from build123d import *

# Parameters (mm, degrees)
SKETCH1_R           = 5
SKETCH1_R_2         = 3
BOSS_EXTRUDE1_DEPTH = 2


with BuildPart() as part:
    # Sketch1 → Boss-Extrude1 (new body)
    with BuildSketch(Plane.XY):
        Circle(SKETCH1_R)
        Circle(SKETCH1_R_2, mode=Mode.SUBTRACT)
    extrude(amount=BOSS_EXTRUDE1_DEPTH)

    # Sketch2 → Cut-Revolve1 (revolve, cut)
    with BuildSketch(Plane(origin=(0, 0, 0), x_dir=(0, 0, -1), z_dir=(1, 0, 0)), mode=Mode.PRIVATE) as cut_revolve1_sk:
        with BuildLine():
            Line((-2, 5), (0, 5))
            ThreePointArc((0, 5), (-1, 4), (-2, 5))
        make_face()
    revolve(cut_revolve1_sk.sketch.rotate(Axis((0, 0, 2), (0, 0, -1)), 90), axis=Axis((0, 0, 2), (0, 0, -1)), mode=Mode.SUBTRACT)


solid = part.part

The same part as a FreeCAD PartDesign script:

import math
import FreeCAD as App
import Part
import Sketcher

doc = App.newDocument("Part")
body = doc.addObject("PartDesign::Body", "Body")

# Sketch on XY plane
sketch1 = body.newObject("Sketcher::SketchObject", "Sketch")
sketch1.AttachmentSupport = (doc.getObject("XY_Plane"), [""])
sketch1.MapMode = "FlatFace"
sketch1.addGeometry(Part.Circle(App.Vector(0, 0, 0), App.Vector(0, 0, 1), 5), False)
sketch1.addGeometry(Part.Circle(App.Vector(0, 0, 0), App.Vector(0, 0, 1), 3), False)
sketch1.addConstraint(Sketcher.Constraint("Coincident", 0, 3, -1, 1))
sketch1.addConstraint(Sketcher.Constraint("Coincident", 1, 3, -1, 1))
sketch1.addConstraint(Sketcher.Constraint("Diameter", 0, 10.0))
sketch1.addConstraint(Sketcher.Constraint("Diameter", 1, 6.0))
pad1 = body.newObject("PartDesign::Pad", "Pad")
pad1.Profile = sketch1
pad1.Length = 2

# Sketch on YZ plane
sketch2 = body.newObject("Sketcher::SketchObject", "Sketch001")
sketch2.AttachmentSupport = (doc.getObject("YZ_Plane"), [""])
sketch2.MapMode = "FlatFace"
sketch2.addGeometry(Part.LineSegment(App.Vector(5, 0, 0), App.Vector(5, 2, 0)), False)
sketch2.addGeometry(Part.ArcOfCircle(Part.Circle(App.Vector(5, 1, 0), App.Vector(0, 0, 1), 1), math.radians(90), math.radians(270)), False)
sketch2.addConstraint(Sketcher.Constraint("Coincident", 0, 1, 1, 2))
sketch2.addConstraint(Sketcher.Constraint("Coincident", 1, 1, 0, 2))
sketch2.addConstraint(Sketcher.Constraint("Vertical", 0))
sketch2.addConstraint(Sketcher.Constraint("PointOnObject", 0, 1, -1))
sketch2.addConstraint(Sketcher.Constraint("Vertical", 1, 3, 0, 1))
sketch2.addConstraint(Sketcher.Constraint("Radius", 1, 1.0))
sketch2.addConstraint(Sketcher.Constraint("DistanceX", -1, 1, 1, 3, 5.0))
groove = body.newObject("PartDesign::Groove", "Groove")
groove.Profile = sketch2
groove.ReferenceAxis = (sketch2, ["V_Axis"])
groove.Angle = 360

doc.recompute()
